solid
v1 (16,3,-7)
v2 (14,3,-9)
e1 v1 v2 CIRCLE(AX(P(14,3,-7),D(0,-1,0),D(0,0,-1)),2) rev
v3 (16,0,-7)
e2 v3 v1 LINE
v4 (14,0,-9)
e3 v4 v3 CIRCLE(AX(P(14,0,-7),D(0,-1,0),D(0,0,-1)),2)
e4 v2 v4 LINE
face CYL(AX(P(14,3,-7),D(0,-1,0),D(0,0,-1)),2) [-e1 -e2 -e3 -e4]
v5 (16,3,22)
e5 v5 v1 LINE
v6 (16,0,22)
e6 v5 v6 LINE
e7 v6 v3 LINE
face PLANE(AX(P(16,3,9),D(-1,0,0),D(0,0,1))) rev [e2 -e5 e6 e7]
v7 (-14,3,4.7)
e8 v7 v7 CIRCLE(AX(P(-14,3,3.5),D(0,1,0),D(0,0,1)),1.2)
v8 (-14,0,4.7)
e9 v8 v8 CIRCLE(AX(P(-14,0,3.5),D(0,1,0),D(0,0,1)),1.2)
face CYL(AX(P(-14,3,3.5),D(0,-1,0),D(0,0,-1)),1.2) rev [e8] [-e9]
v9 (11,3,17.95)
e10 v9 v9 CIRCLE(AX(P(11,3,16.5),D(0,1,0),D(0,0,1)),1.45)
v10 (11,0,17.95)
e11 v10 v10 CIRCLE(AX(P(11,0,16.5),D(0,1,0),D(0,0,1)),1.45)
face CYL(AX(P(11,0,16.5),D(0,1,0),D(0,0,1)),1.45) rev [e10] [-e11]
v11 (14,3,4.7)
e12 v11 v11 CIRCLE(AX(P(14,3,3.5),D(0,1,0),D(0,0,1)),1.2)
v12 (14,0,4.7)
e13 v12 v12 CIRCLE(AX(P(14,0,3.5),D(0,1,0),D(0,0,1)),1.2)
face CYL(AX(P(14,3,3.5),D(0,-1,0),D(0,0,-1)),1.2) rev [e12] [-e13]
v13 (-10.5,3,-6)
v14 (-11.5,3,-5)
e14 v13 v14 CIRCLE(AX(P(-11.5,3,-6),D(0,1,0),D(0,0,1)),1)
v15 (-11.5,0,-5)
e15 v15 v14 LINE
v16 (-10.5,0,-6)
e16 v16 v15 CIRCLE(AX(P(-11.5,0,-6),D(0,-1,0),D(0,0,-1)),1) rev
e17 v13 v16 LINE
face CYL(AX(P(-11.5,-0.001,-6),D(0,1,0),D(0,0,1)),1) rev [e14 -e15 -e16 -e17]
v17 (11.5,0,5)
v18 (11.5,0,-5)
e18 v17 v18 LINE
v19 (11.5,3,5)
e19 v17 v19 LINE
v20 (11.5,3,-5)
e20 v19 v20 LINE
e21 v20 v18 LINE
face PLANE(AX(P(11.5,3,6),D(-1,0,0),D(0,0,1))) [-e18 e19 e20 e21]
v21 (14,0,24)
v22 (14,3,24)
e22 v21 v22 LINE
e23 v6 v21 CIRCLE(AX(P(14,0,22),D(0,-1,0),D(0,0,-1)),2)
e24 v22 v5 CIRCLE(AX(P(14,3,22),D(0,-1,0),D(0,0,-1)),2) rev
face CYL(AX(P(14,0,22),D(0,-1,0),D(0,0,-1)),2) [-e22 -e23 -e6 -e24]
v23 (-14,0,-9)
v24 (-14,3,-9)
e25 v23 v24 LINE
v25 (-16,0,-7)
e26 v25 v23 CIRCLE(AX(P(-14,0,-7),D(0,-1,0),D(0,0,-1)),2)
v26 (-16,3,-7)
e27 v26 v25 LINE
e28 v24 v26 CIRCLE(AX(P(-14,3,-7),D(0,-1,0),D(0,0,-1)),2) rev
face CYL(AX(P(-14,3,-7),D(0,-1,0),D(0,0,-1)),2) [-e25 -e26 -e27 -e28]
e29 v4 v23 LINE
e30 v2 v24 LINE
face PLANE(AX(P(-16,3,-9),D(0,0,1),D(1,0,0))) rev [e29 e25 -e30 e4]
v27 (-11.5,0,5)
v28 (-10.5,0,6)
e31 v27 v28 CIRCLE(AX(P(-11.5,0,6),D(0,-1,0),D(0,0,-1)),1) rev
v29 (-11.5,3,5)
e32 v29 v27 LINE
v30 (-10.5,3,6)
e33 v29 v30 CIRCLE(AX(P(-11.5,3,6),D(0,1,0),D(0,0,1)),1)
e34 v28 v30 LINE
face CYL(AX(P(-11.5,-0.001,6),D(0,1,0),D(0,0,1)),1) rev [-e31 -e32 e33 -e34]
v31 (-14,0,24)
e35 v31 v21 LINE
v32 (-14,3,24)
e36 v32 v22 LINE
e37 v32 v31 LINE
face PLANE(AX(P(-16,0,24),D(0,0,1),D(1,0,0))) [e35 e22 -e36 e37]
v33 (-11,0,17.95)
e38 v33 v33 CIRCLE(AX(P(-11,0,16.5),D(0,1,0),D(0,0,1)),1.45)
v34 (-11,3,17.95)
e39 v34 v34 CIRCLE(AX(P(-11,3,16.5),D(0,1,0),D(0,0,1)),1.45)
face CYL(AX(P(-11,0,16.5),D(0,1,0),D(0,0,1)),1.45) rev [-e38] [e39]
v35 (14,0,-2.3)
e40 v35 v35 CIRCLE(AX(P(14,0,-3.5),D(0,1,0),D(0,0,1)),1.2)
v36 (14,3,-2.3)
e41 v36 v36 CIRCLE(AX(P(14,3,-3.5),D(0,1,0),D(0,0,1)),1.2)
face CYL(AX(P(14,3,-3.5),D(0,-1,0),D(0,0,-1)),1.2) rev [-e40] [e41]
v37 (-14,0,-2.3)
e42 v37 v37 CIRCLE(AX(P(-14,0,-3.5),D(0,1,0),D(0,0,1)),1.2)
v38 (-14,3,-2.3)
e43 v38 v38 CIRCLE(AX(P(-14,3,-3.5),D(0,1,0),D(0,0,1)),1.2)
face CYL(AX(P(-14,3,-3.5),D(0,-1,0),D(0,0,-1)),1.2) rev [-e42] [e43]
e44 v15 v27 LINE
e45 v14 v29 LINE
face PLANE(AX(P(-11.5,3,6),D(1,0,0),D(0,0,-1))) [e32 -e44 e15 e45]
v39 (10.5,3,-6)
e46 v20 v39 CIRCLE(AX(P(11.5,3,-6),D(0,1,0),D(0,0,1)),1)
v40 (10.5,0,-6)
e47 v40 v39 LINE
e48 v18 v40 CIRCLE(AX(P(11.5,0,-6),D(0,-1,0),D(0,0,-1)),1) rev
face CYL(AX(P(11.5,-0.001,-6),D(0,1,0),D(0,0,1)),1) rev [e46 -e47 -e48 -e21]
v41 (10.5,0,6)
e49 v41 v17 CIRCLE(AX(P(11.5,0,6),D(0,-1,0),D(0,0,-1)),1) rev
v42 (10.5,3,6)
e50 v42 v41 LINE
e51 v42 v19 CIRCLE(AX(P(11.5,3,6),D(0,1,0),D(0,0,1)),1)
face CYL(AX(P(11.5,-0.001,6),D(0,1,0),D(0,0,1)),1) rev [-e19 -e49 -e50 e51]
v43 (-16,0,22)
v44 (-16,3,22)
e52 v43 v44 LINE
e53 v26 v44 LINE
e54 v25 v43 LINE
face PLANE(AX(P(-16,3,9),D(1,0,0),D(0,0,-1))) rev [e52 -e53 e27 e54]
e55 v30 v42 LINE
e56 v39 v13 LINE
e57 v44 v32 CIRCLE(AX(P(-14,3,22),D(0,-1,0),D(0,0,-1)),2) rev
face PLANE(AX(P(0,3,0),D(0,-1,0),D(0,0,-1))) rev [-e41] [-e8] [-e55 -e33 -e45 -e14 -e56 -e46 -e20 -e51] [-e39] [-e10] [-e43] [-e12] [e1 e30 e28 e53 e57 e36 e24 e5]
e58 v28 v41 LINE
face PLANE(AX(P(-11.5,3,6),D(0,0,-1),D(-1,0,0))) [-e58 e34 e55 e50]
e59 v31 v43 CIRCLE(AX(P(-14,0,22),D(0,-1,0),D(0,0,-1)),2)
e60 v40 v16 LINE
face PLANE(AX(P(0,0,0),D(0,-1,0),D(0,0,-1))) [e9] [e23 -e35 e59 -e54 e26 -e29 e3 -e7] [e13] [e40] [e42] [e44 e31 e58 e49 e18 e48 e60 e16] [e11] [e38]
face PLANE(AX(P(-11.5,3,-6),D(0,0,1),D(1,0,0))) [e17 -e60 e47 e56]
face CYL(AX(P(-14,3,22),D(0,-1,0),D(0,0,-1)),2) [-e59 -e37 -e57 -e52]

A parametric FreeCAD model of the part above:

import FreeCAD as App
import Part
import Sketcher

V = App.Vector


def edges_at(feature, points):
    """Names of the edges that pass closest to the given points."""
    edges = feature.Shape.Edges
    near = lambda p: min(range(len(edges)), key=lambda i: edges[i].distToShape(Part.Vertex(*p))[0])
    return sorted({f"Edge{near(p) + 1}" for p in points})


def add_polygon(sketch, points):
    """Adds a closed chain of lines whose ends are joined by coincident constraints."""
    first, n = sketch.GeometryCount, len(points)
    for a, b in zip(points, points[1:] + points[:1]):
        sketch.addGeometry(Part.LineSegment(App.Vector(*a, 0), App.Vector(*b, 0)), False)
    for i in range(n):
        sketch.addConstraint(Sketcher.Constraint("Coincident", first + i, 2, first + (i + 1) % n, 1))

doc = App.newDocument("Part")
body = doc.addObject("PartDesign::Body", "Body")

# Sketch on XZ plane
sketch1 = body.newObject("Sketcher::SketchObject", "Sketch")
sketch1.AttachmentSupport = (doc.getObject("XZ_Plane"), [""])
sketch1.MapMode = "FlatFace"
add_polygon(sketch1, [(-16, -9), (-16, 9), (16, 9), (16, -9)])  # lines 0-3
sketch1.addGeometry(Part.Circle(V(-14, 3.5, 0), V(0, 0, 1), 1.2), False)  # 4
sketch1.addGeometry(Part.Circle(V(14, 3.5, 0), V(0, 0, 1), 1.2), False)  # 5
add_polygon(sketch1, [(11.5, 6), (-11.5, 6), (-11.5, -6), (11.5, -6)])  # lines 6-9
sketch1.addGeometry(Part.Circle(V(-14, -3.5, 0), V(0, 0, 1), 1.2), False)  # 10
sketch1.addGeometry(Part.Circle(V(14, -3.5, 0), V(0, 0, 1), 1.2), False)  # 11
sketch1.addConstraint(Sketcher.Constraint("Vertical", 0))
sketch1.addConstraint(Sketcher.Constraint("Horizontal", 1))
sketch1.addConstraint(Sketcher.Constraint("Vertical", 2))
sketch1.addConstraint(Sketcher.Constraint("Horizontal", 3))
sketch1.addConstraint(Sketcher.Constraint("Horizontal", 6))
sketch1.addConstraint(Sketcher.Constraint("Vertical", 7))
sketch1.addConstraint(Sketcher.Constraint("Horizontal", 8))
sketch1.addConstraint(Sketcher.Constraint("Vertical", 9))
sketch1.addConstraint(Sketcher.Constraint("Equal", 4, 5))
sketch1.addConstraint(Sketcher.Constraint("Equal", 5, 10))
sketch1.addConstraint(Sketcher.Constraint("Equal", 10, 11))
sketch1.addConstraint(Sketcher.Constraint("Symmetric", 5, 3, 10, 3, -1, 1))
sketch1.addConstraint(Sketcher.Constraint("Symmetric", 4, 3, 11, 3, -1, 1))
sketch1.addConstraint(Sketcher.Constraint("Symmetric", 0, 2, 2, 2, -1, 1))
sketch1.addConstraint(Sketcher.Constraint("Symmetric", 6, 2, 8, 2, -1, 1))
sketch1.addConstraint(Sketcher.Constraint("Symmetric", 4, 3, 5, 3, -2))
sketch1.addConstraint(Sketcher.Constraint("Diameter", 4, 2.4))
sketch1.addConstraint(Sketcher.Constraint("DistanceX", 1, 1, 1, 2, 32.0))
sketch1.addConstraint(Sketcher.Constraint("DistanceX", 6, 2, 6, 1, 23.0))
sketch1.addConstraint(Sketcher.Constraint("DistanceY", 0, 1, 0, 2, 18.0))
sketch1.addConstraint(Sketcher.Constraint("DistanceY", 7, 2, 7, 1, 12.0))
sketch1.addConstraint(Sketcher.Constraint("DistanceX", 4, 3, -1, 1, 14.0))
sketch1.addConstraint(Sketcher.Constraint("DistanceY", 10, 3, 4, 3, 7.0))
pad1 = body.newObject("PartDesign::Pad", "Pad")
pad1.Profile = sketch1
pad1.Length = 3
pad1.Reversed = True

# Sketch on XZ plane
sketch2 = body.newObject("Sketcher::SketchObject", "Sketch001")
sketch2.AttachmentSupport = (doc.getObject("XZ_Plane"), [""])
sketch2.MapMode = "FlatFace"
sketch2.AttachmentOffset = App.Placement(V(0, 0, -3), App.Rotation())
sketch2.addGeometry(Part.Circle(V(-11.5, -6, 0), V(0, 0, 1), 1), False)
sketch2.addConstraint(Sketcher.Constraint("Diameter", 0, 2.0))
sketch2.addConstraint(Sketcher.Constraint("DistanceY", 0, 3, -1, 1, 6.0))
sketch2.addConstraint(Sketcher.Constraint("DistanceX", 0, 3, -1, 1, 11.5))
pocket1 = body.newObject("PartDesign::Pocket", "Pocket")
pocket1.Profile = sketch2
pocket1.Type = "UpToFirst"
pocket1.Reversed = True

# Sketch on XZ plane
sketch3 = body.newObject("Sketcher::SketchObject", "Sketch002")
sketch3.AttachmentSupport = (doc.getObject("XZ_Plane"), [""])
sketch3.MapMode = "FlatFace"
sketch3.AttachmentOffset = App.Placement(V(0, 0, -3), App.Rotation())
sketch3.addGeometry(Part.Circle(V(-11.5, 6, 0), V(0, 0, 1), 1), False)
sketch3.addConstraint(Sketcher.Constraint("Diameter", 0, 2.0))
sketch3.addConstraint(Sketcher.Constraint("DistanceY", -1, 1, 0, 3, 6.0))
sketch3.addConstraint(Sketcher.Constraint("DistanceX", 0, 3, -1, 1, 11.5))
pocket2 = body.newObject("PartDesign::Pocket", "Pocket001")
pocket2.Profile = sketch3
pocket2.Type = "UpToFirst"
pocket2.Reversed = True

# Sketch on XZ plane
sketch4 = body.newObject("Sketcher::SketchObject", "Sketch003")
sketch4.AttachmentSupport = (doc.getObject("XZ_Plane"), [""])
sketch4.MapMode = "FlatFace"
sketch4.AttachmentOffset = App.Placement(V(0, 0, -3), App.Rotation())
sketch4.addGeometry(Part.Circle(V(11.5, 6, 0), V(0, 0, 1), 1), False)
sketch4.addConstraint(Sketcher.Constraint("Diameter", 0, 2.0))
sketch4.addConstraint(Sketcher.Constraint("DistanceY", -1, 1, 0, 3, 6.0))
sketch4.addConstraint(Sketcher.Constraint("DistanceX", -1, 1, 0, 3, 11.5))
pocket3 = body.newObject("PartDesign::Pocket", "Pocket002")
pocket3.Profile = sketch4
pocket3.Type = "UpToFirst"
pocket3.Reversed = True

# Sketch on XZ plane
sketch5 = body.newObject("Sketcher::SketchObject", "Sketch004")
sketch5.AttachmentSupport = (doc.getObject("XZ_Plane"), [""])
sketch5.MapMode = "FlatFace"
sketch5.AttachmentOffset = App.Placement(V(0, 0, -3), App.Rotation())
sketch5.addGeometry(Part.Circle(V(11.5, -6, 0), V(0, 0, 1), 1), False)
sketch5.addConstraint(Sketcher.Constraint("Diameter", 0, 2.0))
sketch5.addConstraint(Sketcher.Constraint("DistanceY", 0, 3, -1, 1, 6.0))
sketch5.addConstraint(Sketcher.Constraint("DistanceX", -1, 1, 0, 3, 11.5))
pocket4 = body.newObject("PartDesign::Pocket", "Pocket003")
pocket4.Profile = sketch5
pocket4.Type = "UpToFirst"
pocket4.Reversed = True

# Sketch on XZ plane
sketch6 = body.newObject("Sketcher::SketchObject", "Sketch005")
sketch6.AttachmentSupport = (doc.getObject("XZ_Plane"), [""])
sketch6.MapMode = "FlatFace"
sketch6.AttachmentOffset = App.Placement(V(0, 0, -3), App.Rotation())
add_polygon(sketch6, [(-16, 9), (-16, 24), (16, 24), (16, 9)])  # lines 0-3
sketch6.addGeometry(Part.Circle(V(-11, 16.5, 0), V(0, 0, 1), 1.4), False)  # 4
sketch6.addGeometry(Part.Circle(V(11, 16.5, 0), V(0, 0, 1), 1.4), False)  # 5
sketch6.addConstraint(Sketcher.Constraint("Vertical", 0))
sketch6.addConstraint(Sketcher.Constraint("Horizontal", 1))
sketch6.addConstraint(Sketcher.Constraint("Vertical", 2))
sketch6.addConstraint(Sketcher.Constraint("Horizontal", 3))
sketch6.addConstraint(Sketcher.Constraint("Equal", 4, 5))
sketch6.addConstraint(Sketcher.Constraint("Symmetric", 4, 3, 5, 3, -2))
sketch6.addConstraint(Sketcher.Constraint("Diameter", 4, 2.9))
sketch6.addConstraint(Sketcher.Constraint("DistanceX", 1, 1, 1, 2, 32.0))
sketch6.addConstraint(Sketcher.Constraint("DistanceY", 0, 1, 0, 2, 15.0))
sketch6.addConstraint(Sketcher.Constraint("DistanceX", 4, 3, -1, 1, 11.0))
sketch6.addConstraint(Sketcher.Constraint("DistanceX", 0, 2, -1, 1, 16.0))
sketch6.addConstraint(Sketcher.Constraint("DistanceY", -1, 1, 0, 2, 24.0))
sketch6.addConstraint(Sketcher.Constraint("DistanceY", -1, 1, 4, 3, 16.5))
pad2 = body.newObject("PartDesign::Pad", "Pad001")
pad2.Profile = sketch6
pad2.Length = 3
doc.recompute()

fillet = body.newObject("PartDesign::Fillet", "Fillet")
fillet.Base = (pad2, edges_at(pad2, [
    (-16, 1.5, -9),
    (16, 1.5, -9),
    (-16, 1.5, 24),
    (16, 1.5, 24),
]))
fillet.Radius = 2

doc.recompute()
